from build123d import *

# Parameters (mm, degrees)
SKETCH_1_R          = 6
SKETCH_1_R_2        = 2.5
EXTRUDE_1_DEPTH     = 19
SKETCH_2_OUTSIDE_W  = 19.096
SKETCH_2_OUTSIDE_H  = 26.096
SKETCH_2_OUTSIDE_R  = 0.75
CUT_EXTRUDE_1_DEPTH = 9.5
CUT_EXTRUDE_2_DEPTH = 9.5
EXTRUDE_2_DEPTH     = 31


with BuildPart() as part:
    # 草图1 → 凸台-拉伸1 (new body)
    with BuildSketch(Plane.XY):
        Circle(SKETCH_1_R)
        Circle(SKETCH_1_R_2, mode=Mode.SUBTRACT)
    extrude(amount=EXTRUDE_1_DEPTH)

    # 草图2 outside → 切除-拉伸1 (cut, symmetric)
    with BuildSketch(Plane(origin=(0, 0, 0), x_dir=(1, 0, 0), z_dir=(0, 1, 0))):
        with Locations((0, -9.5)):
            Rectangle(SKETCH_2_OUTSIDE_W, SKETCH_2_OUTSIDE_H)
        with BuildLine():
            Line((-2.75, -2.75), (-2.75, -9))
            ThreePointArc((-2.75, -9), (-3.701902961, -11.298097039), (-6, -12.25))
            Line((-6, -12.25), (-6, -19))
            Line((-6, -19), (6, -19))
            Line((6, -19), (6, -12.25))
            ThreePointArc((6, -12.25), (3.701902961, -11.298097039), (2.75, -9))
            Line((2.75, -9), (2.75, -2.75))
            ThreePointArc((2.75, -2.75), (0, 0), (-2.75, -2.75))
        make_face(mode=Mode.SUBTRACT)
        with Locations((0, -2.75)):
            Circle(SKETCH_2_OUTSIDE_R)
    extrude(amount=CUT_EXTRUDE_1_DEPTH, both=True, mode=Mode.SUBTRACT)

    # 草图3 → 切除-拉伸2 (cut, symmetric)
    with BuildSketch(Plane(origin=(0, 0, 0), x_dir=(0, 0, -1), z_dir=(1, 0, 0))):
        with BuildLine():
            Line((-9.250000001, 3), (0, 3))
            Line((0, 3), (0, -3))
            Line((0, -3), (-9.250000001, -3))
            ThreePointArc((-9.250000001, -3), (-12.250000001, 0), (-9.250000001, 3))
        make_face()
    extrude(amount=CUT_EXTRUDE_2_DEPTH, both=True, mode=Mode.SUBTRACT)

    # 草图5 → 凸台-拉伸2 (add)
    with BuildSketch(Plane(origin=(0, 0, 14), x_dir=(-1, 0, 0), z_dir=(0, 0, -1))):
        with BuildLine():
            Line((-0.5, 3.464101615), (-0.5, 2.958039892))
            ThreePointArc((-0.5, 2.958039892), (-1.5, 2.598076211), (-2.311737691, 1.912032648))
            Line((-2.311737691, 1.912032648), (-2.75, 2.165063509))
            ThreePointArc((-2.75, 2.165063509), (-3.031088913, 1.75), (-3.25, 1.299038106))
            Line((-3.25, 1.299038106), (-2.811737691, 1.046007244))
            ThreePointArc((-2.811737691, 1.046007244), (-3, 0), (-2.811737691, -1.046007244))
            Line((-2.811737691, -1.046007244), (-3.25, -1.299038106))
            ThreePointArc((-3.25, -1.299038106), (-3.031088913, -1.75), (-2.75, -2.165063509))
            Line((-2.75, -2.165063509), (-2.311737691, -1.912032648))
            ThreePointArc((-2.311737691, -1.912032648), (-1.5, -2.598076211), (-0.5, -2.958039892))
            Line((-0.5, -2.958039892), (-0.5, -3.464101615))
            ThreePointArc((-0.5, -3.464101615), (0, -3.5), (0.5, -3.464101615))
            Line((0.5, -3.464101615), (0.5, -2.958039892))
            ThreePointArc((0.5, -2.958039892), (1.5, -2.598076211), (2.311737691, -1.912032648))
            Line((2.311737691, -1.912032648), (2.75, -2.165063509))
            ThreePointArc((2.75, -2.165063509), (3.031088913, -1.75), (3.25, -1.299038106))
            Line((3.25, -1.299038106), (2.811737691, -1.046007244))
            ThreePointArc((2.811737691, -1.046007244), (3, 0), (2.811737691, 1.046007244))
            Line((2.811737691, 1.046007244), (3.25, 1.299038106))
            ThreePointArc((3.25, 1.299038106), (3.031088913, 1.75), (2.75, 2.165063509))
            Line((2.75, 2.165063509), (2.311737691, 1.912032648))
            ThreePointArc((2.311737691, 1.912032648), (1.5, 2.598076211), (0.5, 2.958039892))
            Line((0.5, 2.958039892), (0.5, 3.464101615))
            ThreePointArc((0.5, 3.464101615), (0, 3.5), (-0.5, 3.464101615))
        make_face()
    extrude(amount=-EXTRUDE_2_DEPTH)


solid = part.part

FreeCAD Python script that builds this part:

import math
import FreeCAD as App
import Part
import Sketcher
Q = App.Units.Quantity

doc = App.newDocument("Part")
params = doc.addObject("Spreadsheet::Sheet", "Params")
for row, (alias, value) in enumerate([
    ("sketch1_diameter", "12 mm"),
    ("sketch1_diameter2", "5 mm"),
    ("pad1_length", "19 mm"),
    ("sketch2_diameter", "1.5 mm"),
    ("sketch2_width", "12 mm"),
    ("sketch2_radius", "2.75 mm"),
    ("sketch2_radius2", "3.25 mm"),
    ("sketch2_height", "6.25 mm"),
    ("pocket1_length", "19 mm"),
    ("sketch3_radius", "3 mm"),
    ("sketch3_height", "9.25 mm"),
    ("pocket2_length", "19 mm"),
    ("sketch4_radius", "3 mm"),
    ("sketch4_radius2", "3.5 mm"),
    ("pad2_length", "31 mm"),
], start=1):
    params.set(f"A{row}", alias)
    params.set(f"B{row}", "=" + value)
    params.setAlias(f"B{row}", alias)

body = doc.addObject("PartDesign::Body", "Body")

# Sketch on XY plane
sketch1 = body.newObject("Sketcher::SketchObject", "Sketch")
sketch1.AttachmentSupport = (doc.getObject("XY_Plane"), [""])
sketch1.MapMode = "FlatFace"
sketch1.addGeometry(Part.Circle(App.Vector(0, 0, 0), App.Vector(0, 0, 1), 6), False)
sketch1.addGeometry(Part.Circle(App.Vector(0, 0, 0), App.Vector(0, 0, 1), 2.5), False)
sketch1.addConstraint(Sketcher.Constraint("Coincident", 0, 3, -1, 1))
sketch1.addConstraint(Sketcher.Constraint("Coincident", 1, 3, -1, 1))
sketch1.addConstraint(Sketcher.Constraint("Diameter", 0, 12.0))
sketch1.addConstraint(Sketcher.Constraint("Diameter", 1, 5.0))
sketch1.setExpression("Constraints[2]", "Params.sketch1_diameter")
sketch1.setExpression("Constraints[3]", "Params.sketch1_diameter2")
pad1 = body.newObject("PartDesign::Pad", "Pad")
pad1.Profile = sketch1
pad1.setExpression("Length", "Params.pad1_length")

# Sketch on XZ plane
sketch2 = body.newObject("Sketcher::SketchObject", "Sketch001")
sketch2.AttachmentSupport = (doc.getObject("XZ_Plane"), [""])
sketch2.MapMode = "FlatFace"
sketch2.addGeometry(Part.LineSegment(App.Vector(-9.548, -3.548, 0), App.Vector(-9.548, 22.548, 0)), False)
sketch2.addGeometry(Part.LineSegment(App.Vector(-9.548, 22.548, 0), App.Vector(9.548, 22.548, 0)), False)
sketch2.addGeometry(Part.LineSegment(App.Vector(9.548, 22.548, 0), App.Vector(9.548, -3.548, 0)), False)
sketch2.addGeometry(Part.LineSegment(App.Vector(9.548, -3.548, 0), App.Vector(-9.548, -3.548, 0)), False)
sketch2.addGeometry(Part.LineSegment(App.Vector(-2.75, 9, 0), App.Vector(-2.75, 2.75, 0)), False)
sketch2.addGeometry(Part.ArcOfCircle(Part.Circle(App.Vector(0, 2.75, 0), App.Vector(0, 0, 1), 2.75), math.radians(180), math.radians(360)), False)
sketch2.addGeometry(Part.LineSegment(App.Vector(2.75, 2.75, 0), App.Vector(2.75, 9, 0)), False)
sketch2.addGeometry(Part.ArcOfCircle(Part.Circle(App.Vector(6, 9, 0), App.Vector(0, 0, 1), 3.25), math.radians(90), math.radians(180)), False)
sketch2.addGeometry(Part.LineSegment(App.Vector(6, 12.25, 0), App.Vector(6, 19, 0)), False)
sketch2.addGeometry(Part.LineSegment(App.Vector(6, 19, 0), App.Vector(-6, 19, 0)), False)
sketch2.addGeometry(Part.LineSegment(App.Vector(-6, 19, 0), App.Vector(-6, 12.25, 0)), False)
sketch2.addGeometry(Part.ArcOfCircle(Part.Circle(App.Vector(-6, 9, 0), App.Vector(0, 0, 1), 3.25), math.radians(0), math.radians(90)), False)
sketch2.addGeometry(Part.Circle(App.Vector(0, 2.75, 0), App.Vector(0, 0, 1), 0.75), False)
sketch2.addConstraint(Sketcher.Constraint("Coincident", 0, 2, 1, 1))
sketch2.addConstraint(Sketcher.Constraint("Coincident", 1, 2, 2, 1))
sketch2.addConstraint(Sketcher.Constraint("Coincident", 2, 2, 3, 1))
sketch2.addConstraint(Sketcher.Constraint("Coincident", 3, 2, 0, 1))
sketch2.addConstraint(Sketcher.Constraint("Tangent", 4, 2, 5, 1))
sketch2.addConstraint(Sketcher.Constraint("Tangent", 5, 2, 6, 1))
sketch2.addConstraint(Sketcher.Constraint("Tangent", 6, 2, 7, 2))
sketch2.addConstraint(Sketcher.Constraint("Coincident", 7, 1, 8, 1))
sketch2.addConstraint(Sketcher.Constraint("Coincident", 8, 2, 9, 1))
sketch2.addConstraint(Sketcher.Constraint("Coincident", 9, 2, 10, 1))
sketch2.addConstraint(Sketcher.Constraint("Coincident", 10, 2, 11, 2))
sketch2.addConstraint(Sketcher.Constraint("Tangent", 11, 1, 4, 1))
sketch2.addConstraint(Sketcher.Constraint("Vertical", 0))
sketch2.addConstraint(Sketcher.Constraint("Horizontal", 1))
sketch2.addConstraint(Sketcher.Constraint("Vertical", 2))
sketch2.addConstraint(Sketcher.Constraint("Horizontal", 3))
sketch2.addConstraint(Sketcher.Constraint("Vertical", 4))
sketch2.addConstraint(Sketcher.Constraint("Vertical", 6))
sketch2.addConstraint(Sketcher.Constraint("Vertical", 8))
sketch2.addConstraint(Sketcher.Constraint("Horizontal", 9))
sketch2.addConstraint(Sketcher.Constraint("Vertical", 10))
sketch2.addConstraint(Sketcher.Constraint("Coincident", 12, 3, 5, 3))
sketch2.addConstraint(Sketcher.Constraint("Equal", 7, 11))
sketch2.addConstraint(Sketcher.Constraint("Symmetric", 7, 3, 11, 3, -2))
sketch2.addConstraint(Sketcher.Constraint("Vertical", 11, 3, 9, 2))
sketch2.addConstraint(Sketcher.Constraint("Diameter", 12, 1.5))
sketch2.addConstraint(Sketcher.Constraint("DistanceX", 9, 2, 9, 1, 12.0))
sketch2.addConstraint(Sketcher.Constraint("Radius", 5, 2.75))
sketch2.addConstraint(Sketcher.Constraint("Radius", 7, 3.25))
sketch2.addConstraint(Sketcher.Constraint("DistanceY", -1, 1, 7, 3, 9.0))
sketch2.addConstraint(Sketcher.Constraint("DistanceY", -1, 1, 8, 2, 19.0))
sketch2.addConstraint(Sketcher.Constraint("DistanceY", 4, 2, 4, 1, 6.25))
sketch2.addConstraint(Sketcher.Constraint("DistanceX", 1, 1, 1, 2, 19.096))
sketch2.addConstraint(Sketcher.Constraint("DistanceY", 0, 1, 0, 2, 26.096))
sketch2.addConstraint(Sketcher.Constraint("DistanceX", 0, 2, -1, 1, 9.548))
sketch2.addConstraint(Sketcher.Constraint("DistanceY", -1, 1, 0, 2, 22.548))
sketch2.setExpression("Constraints[25]", "Params.sketch2_diameter")
sketch2.setExpression("Constraints[26]", "Params.sketch2_width")
sketch2.setExpression("Constraints[27]", "Params.sketch2_radius")
sketch2.setExpression("Constraints[28]", "Params.sketch2_radius2")
sketch2.setExpression("Constraints[31]", "Params.sketch2_height")
pocket1 = body.newObject("PartDesign::Pocket", "Pocket")
pocket1.Profile = sketch2
pocket1.setExpression("Length", "Params.pocket1_length")
pocket1.Midplane = True

# Sketch on YZ plane
sketch3 = body.newObject("Sketcher::SketchObject", "Sketch002")
sketch3.AttachmentSupport = (doc.getObject("YZ_Plane"), [""])
sketch3.MapMode = "FlatFace"
sketch3.addGeometry(Part.LineSegment(App.Vector(3, 0, 0), App.Vector(3, 9.25, 0)), False)
sketch3.addGeometry(Part.ArcOfCircle(Part.Circle(App.Vector(0, 9.25, 0), App.Vector(0, 0, 1), 3), math.radians(0), math.radians(180)), False)
sketch3.addGeometry(Part.LineSegment(App.Vector(-3, 9.25, 0), App.Vector(-3, 0, 0)), False)
sketch3.addGeometry(Part.LineSegment(App.Vector(-3, 0, 0), App.Vector(3, 0, 0)), False)
sketch3.addConstraint(Sketcher.Constraint("Tangent", 0, 2, 1, 1))
sketch3.addConstraint(Sketcher.Constraint("Tangent", 1, 2, 2, 1))
sketch3.addConstraint(Sketcher.Constraint("Coincident", 2, 2, 3, 1))
sketch3.addConstraint(Sketcher.Constraint("Coincident", 3, 2, 0, 1))
sketch3.addConstraint(Sketcher.Constraint("Vertical", 0))
sketch3.addConstraint(Sketcher.Constraint("Vertical", 2))
sketch3.addConstraint(Sketcher.Constraint("Horizontal", 3))
sketch3.addConstraint(Sketcher.Constraint("Symmetric", 2, 2, 3, 2, -1, 1))
sketch3.addConstraint(Sketcher.Constraint("Radius", 1, 3.0))
sketch3.addConstraint(Sketcher.Constraint("DistanceY", 0, 1, 0, 2, 9.25))
sketch3.setExpression("Constraints[8]", "Params.sketch3_radius")
sketch3.setExpression("Constraints[9]", "Params.sketch3_height")
pocket2 = body.newObject("PartDesign::Pocket", "Pocket001")
pocket2.Profile = sketch3
pocket2.setExpression("Length", "Params.pocket2_length")
pocket2.Midplane = True

# Sketch on XY plane
sketch4 = body.newObject("Sketcher::SketchObject", "Sketch003")
sketch4.AttachmentSupport = (doc.getObject("XY_Plane"), [""])
sketch4.MapMode = "FlatFace"
sketch4.AttachmentOffset = App.Placement(App.Vector(0, 0, 14), App.Rotation())
sketch4.addGeometry(Part.LineSegment(App.Vector(0.5, 3.464102, 0), App.Vector(0.5, 2.95804, 0)), False)
sketch4.addGeometry(Part.ArcOfCircle(Part.Circle(App.Vector(0, 0, 0), App.Vector(0, 0, 1), 3), math.radians(39.594068), math.radians(80.405932)), False)
sketch4.addGeometry(Part.LineSegment(App.Vector(2.311738, 1.912033, 0), App.Vector(2.75, 2.165064, 0)), False)
sketch4.addGeometry(Part.ArcOfCircle(Part.Circle(App.Vector(0, 0, 0), App.Vector(0, 0, 1), 3.5), math.radians(21.786789), math.radians(38.213211)), False)
sketch4.addGeometry(Part.LineSegment(App.Vector(3.25, 1.299038, 0), App.Vector(2.811738, 1.046007, 0)), False)
sketch4.addGeometry(Part.ArcOfCircle(Part.Circle(App.Vector(0, 0, 0), App.Vector(0, 0, 1), 3), math.radians(-20.405932), math.radians(20.405932)), False)
sketch4.addGeometry(Part.LineSegment(App.Vector(2.811738, -1.046007, 0), App.Vector(3.25, -1.299038, 0)), False)
sketch4.addGeometry(Part.ArcOfCircle(Part.Circle(App.Vector(0, 0, 0), App.Vector(0, 0, 1), 3.5), math.radians(-38.213211), math.radians(-21.786789)), False)
sketch4.addGeometry(Part.LineSegment(App.Vector(2.75, -2.165064, 0), App.Vector(2.311738, -1.912033, 0)), False)
sketch4.addGeometry(Part.ArcOfCircle(Part.Circle(App.Vector(0, 0, 0), App.Vector(0, 0, 1), 3), math.radians(-80.405932), math.radians(-39.594068)), False)
sketch4.addGeometry(Part.LineSegment(App.Vector(0.5, -2.95804, 0), App.Vector(0.5, -3.464102, 0)), False)
sketch4.addGeometry(Part.ArcOfCircle(Part.Circle(App.Vector(0, 0, 0), App.Vector(0, 0, 1), 3.5), math.radians(-98.213211), math.radians(-81.786789)), False)
sketch4.addGeometry(Part.LineSegment(App.Vector(-0.5, -3.464102, 0), App.Vector(-0.5, -2.95804, 0)), False)
sketch4.addGeometry(Part.ArcOfCircle(Part.Circle(App.Vector(0, 0, 0), App.Vector(0, 0, 1), 3), math.radians(-140.405932), math.radians(-99.594068)), False)
sketch4.addGeometry(Part.LineSegment(App.Vector(-2.311738, -1.912033, 0), App.Vector(-2.75, -2.165064, 0)), False)
sketch4.addGeometry(Part.ArcOfCircle(Part.Circle(App.Vector(0, 0, 0), App.Vector(0, 0, 1), 3.5), math.radians(-158.213211), math.radians(-141.786789)), False)
sketch4.addGeometry(Part.LineSegment(App.Vector(-3.25, -1.299038, 0), App.Vector(-2.811738, -1.046007, 0)), False)
sketch4.addGeometry(Part.ArcOfCircle(Part.Circle(App.Vector(0, 0, 0), App.Vector(0, 0, 1), 3), math.radians(159.594068), math.radians(200.405932)), False)
sketch4.addGeometry(Part.LineSegment(App.Vector(-2.811738, 1.046007, 0), App.Vector(-3.25, 1.299038, 0)), False)
sketch4.addGeometry(Part.ArcOfCircle(Part.Circle(App.Vector(0, 0, 0), App.Vector(0, 0, 1), 3.5), math.radians(141.786789), math.radians(158.213211)), False)
sketch4.addGeometry(Part.LineSegment(App.Vector(-2.75, 2.165064, 0), App.Vector(-2.311738, 1.912033, 0)), False)
sketch4.addGeometry(Part.ArcOfCircle(Part.Circle(App.Vector(0, 0, 0), App.Vector(0, 0, 1), 3), math.radians(99.594068), math.radians(140.405932)), False)
sketch4.addGeometry(Part.LineSegment(App.Vector(-0.5, 2.95804, 0), App.Vector(-0.5, 3.464102, 0)), False)
sketch4.addGeometry(Part.ArcOfCircle(Part.Circle(App.Vector(0, 0, 0), App.Vector(0, 0, 1), 3.5), math.radians(81.786789), math.radians(98.213211)), False)
sketch4.addConstraint(Sketcher.Constraint("Coincident", 0, 2, 1, 2))
sketch4.addConstraint(Sketcher.Constraint("Coincident", 1, 1, 2, 1))
sketch4.addConstraint(Sketcher.Constraint("Coincident", 2, 2, 3, 2))
sketch4.addConstraint(Sketcher.Constraint("Coincident", 3, 1, 4, 1))
sketch4.addConstraint(Sketcher.Constraint("Coincident", 4, 2, 5, 2))
sketch4.addConstraint(Sketcher.Constraint("Coincident", 5, 1, 6, 1))
sketch4.addConstraint(Sketcher.Constraint("Coincident", 6, 2, 7, 2))
sketch4.addConstraint(Sketcher.Constraint("Coincident", 7, 1, 8, 1))
sketch4.addConstraint(Sketcher.Constraint("Coincident", 8, 2, 9, 2))
sketch4.addConstraint(Sketcher.Constraint("Coincident", 9, 1, 10, 1))
sketch4.addConstraint(Sketcher.Constraint("Coincident", 10, 2, 11, 2))
sketch4.addConstraint(Sketcher.Constraint("Coincident", 11, 1, 12, 1))
sketch4.addConstraint(Sketcher.Constraint("Coincident", 12, 2, 13, 2))
sketch4.addConstraint(Sketcher.Constraint("Coincident", 13, 1, 14, 1))
sketch4.addConstraint(Sketcher.Constraint("Coincident", 14, 2, 15, 2))
sketch4.addConstraint(Sketcher.Constraint("Coincident", 15, 1, 16, 1))
sketch4.addConstraint(Sketcher.Constraint("Coincident", 16, 2, 17, 2))
sketch4.addConstraint(Sketcher.Constraint("Coincident", 17, 1, 18, 1))
sketch4.addConstraint(Sketcher.Constraint("Coincident", 18, 2, 19, 2))
sketch4.addConstraint(Sketcher.Constraint("Coincident", 19, 1, 20, 1))
sketch4.addConstraint(Sketcher.Constraint("Coincident", 20, 2, 21, 2))
sketch4.addConstraint(Sketcher.Constraint("Coincident", 21, 1, 22, 1))
sketch4.addConstraint(Sketcher.Constraint("Coincident", 22, 2, 23, 2))
sketch4.addConstraint(Sketcher.Constraint("Coincident", 23, 1, 0, 1))
sketch4.addConstraint(Sketcher.Constraint("Vertical", 0))
sketch4.addConstraint(Sketcher.Constraint("Vertical", 10))
sketch4.addConstraint(Sketcher.Constraint("Vertical", 12))
sketch4.addConstraint(Sketcher.Constraint("Vertical", 22))
sketch4.addConstraint(Sketcher.Constraint("Coincident", 1, 3, -1, 1))
sketch4.addConstraint(Sketcher.Constraint("Coincident", 3, 3, -1, 1))
sketch4.addConstraint(Sketcher.Constraint("Coincident", 5, 3, -1, 1))
sketch4.addConstraint(Sketcher.Constraint("Coincident", 7, 3, -1, 1))
sketch4.addConstraint(Sketcher.Constraint("Coincident", 9, 3, -1, 1))
sketch4.addConstraint(Sketcher.Constraint("Coincident", 11, 3, -1, 1))
sketch4.addConstraint(Sketcher.Constraint("Coincident", 13, 3, -1, 1))
sketch4.addConstraint(Sketcher.Constraint("Coincident", 15, 3, -1, 1))
sketch4.addConstraint(Sketcher.Constraint("Coincident", 17, 3, -1, 1))
sketch4.addConstraint(Sketcher.Constraint("Coincident", 19, 3, -1, 1))
sketch4.addConstraint(Sketcher.Constraint("Coincident", 21, 3, -1, 1))
sketch4.addConstraint(Sketcher.Constraint("Coincident", 23, 3, -1, 1))
sketch4.addConstraint(Sketcher.Constraint("Equal", 1, 5))
sketch4.addConstraint(Sketcher.Constraint("Equal", 3, 7))
sketch4.addConstraint(Sketcher.Constraint("Equal", 5, 9))
sketch4.addConstraint(Sketcher.Constraint("Equal", 7, 11))
sketch4.addConstraint(Sketcher.Constraint("Equal", 9, 13))
sketch4.addConstraint(Sketcher.Constraint("Equal", 11, 15))
sketch4.addConstraint(Sketcher.Constraint("Equal", 13, 17))
sketch4.addConstraint(Sketcher.Constraint("Equal", 15, 19))
sketch4.addConstraint(Sketcher.Constraint("Equal", 17, 21))
sketch4.addConstraint(Sketcher.Constraint("Equal", 19, 23))
sketch4.addConstraint(Sketcher.Constraint("Parallel", 2, 4))
sketch4.addConstraint(Sketcher.Constraint("Parallel", 6, 8))
sketch4.addConstraint(Sketcher.Constraint("Parallel", 4, 14))
sketch4.addConstraint(Sketcher.Constraint("Parallel", 14, 16))
sketch4.addConstraint(Sketcher.Constraint("Parallel", 8, 18))
sketch4.addConstraint(Sketcher.Constraint("Parallel", 18, 20))
sketch4.addConstraint(Sketcher.Constraint("Horizontal", 10, 2, 11, 1))
sketch4.addConstraint(Sketcher.Constraint("Horizontal", 8, 2, 13, 1))
sketch4.addConstraint(Sketcher.Constraint("Horizontal", 7, 1, 14, 2))
sketch4.addConstraint(Sketcher.Constraint("Horizontal", 6, 2, 15, 1))
sketch4.addConstraint(Sketcher.Constraint("Horizontal", 4, 2, 17, 1))
sketch4.addConstraint(Sketcher.Constraint("Horizontal", 2, 2, 19, 1))
sketch4.addConstraint(Sketcher.Constraint("Horizontal", 0, 2, 21, 1))
sketch4.addConstraint(Sketcher.Constraint("Vertical", 4, 2, 5, 1))
sketch4.addConstraint(Sketcher.Constraint("Vertical", 2, 2, 7, 1))
sketch4.addConstraint(Sketcher.Constraint("Vertical", 0, 2, 9, 1))
sketch4.addConstraint(Sketcher.Constraint("Equal", 2, 4))
sketch4.addConstraint(Sketcher.Constraint("Radius", 1, 3.0))
sketch4.addConstraint(Sketcher.Constraint("Radius", 3, 3.5))
sketch4.addConstraint(Sketcher.Constraint("Angle", 2, Q("30 deg")))
sketch4.addConstraint(Sketcher.Constraint("DistanceX", 11, 1, 10, 2, 1.0))
sketch4.addConstraint(Sketcher.Constraint("DistanceX", 2, 2, 3, 1, 0.5))
sketch4.setExpression("Constraints[67]", "Params.sketch4_radius")
sketch4.setExpression("Constraints[68]", "Params.sketch4_radius2")
pad2 = body.newObject("PartDesign::Pad", "Pad001")
pad2.Profile = sketch4
pad2.setExpression("Length", "Params.pad2_length")

doc.recompute()
